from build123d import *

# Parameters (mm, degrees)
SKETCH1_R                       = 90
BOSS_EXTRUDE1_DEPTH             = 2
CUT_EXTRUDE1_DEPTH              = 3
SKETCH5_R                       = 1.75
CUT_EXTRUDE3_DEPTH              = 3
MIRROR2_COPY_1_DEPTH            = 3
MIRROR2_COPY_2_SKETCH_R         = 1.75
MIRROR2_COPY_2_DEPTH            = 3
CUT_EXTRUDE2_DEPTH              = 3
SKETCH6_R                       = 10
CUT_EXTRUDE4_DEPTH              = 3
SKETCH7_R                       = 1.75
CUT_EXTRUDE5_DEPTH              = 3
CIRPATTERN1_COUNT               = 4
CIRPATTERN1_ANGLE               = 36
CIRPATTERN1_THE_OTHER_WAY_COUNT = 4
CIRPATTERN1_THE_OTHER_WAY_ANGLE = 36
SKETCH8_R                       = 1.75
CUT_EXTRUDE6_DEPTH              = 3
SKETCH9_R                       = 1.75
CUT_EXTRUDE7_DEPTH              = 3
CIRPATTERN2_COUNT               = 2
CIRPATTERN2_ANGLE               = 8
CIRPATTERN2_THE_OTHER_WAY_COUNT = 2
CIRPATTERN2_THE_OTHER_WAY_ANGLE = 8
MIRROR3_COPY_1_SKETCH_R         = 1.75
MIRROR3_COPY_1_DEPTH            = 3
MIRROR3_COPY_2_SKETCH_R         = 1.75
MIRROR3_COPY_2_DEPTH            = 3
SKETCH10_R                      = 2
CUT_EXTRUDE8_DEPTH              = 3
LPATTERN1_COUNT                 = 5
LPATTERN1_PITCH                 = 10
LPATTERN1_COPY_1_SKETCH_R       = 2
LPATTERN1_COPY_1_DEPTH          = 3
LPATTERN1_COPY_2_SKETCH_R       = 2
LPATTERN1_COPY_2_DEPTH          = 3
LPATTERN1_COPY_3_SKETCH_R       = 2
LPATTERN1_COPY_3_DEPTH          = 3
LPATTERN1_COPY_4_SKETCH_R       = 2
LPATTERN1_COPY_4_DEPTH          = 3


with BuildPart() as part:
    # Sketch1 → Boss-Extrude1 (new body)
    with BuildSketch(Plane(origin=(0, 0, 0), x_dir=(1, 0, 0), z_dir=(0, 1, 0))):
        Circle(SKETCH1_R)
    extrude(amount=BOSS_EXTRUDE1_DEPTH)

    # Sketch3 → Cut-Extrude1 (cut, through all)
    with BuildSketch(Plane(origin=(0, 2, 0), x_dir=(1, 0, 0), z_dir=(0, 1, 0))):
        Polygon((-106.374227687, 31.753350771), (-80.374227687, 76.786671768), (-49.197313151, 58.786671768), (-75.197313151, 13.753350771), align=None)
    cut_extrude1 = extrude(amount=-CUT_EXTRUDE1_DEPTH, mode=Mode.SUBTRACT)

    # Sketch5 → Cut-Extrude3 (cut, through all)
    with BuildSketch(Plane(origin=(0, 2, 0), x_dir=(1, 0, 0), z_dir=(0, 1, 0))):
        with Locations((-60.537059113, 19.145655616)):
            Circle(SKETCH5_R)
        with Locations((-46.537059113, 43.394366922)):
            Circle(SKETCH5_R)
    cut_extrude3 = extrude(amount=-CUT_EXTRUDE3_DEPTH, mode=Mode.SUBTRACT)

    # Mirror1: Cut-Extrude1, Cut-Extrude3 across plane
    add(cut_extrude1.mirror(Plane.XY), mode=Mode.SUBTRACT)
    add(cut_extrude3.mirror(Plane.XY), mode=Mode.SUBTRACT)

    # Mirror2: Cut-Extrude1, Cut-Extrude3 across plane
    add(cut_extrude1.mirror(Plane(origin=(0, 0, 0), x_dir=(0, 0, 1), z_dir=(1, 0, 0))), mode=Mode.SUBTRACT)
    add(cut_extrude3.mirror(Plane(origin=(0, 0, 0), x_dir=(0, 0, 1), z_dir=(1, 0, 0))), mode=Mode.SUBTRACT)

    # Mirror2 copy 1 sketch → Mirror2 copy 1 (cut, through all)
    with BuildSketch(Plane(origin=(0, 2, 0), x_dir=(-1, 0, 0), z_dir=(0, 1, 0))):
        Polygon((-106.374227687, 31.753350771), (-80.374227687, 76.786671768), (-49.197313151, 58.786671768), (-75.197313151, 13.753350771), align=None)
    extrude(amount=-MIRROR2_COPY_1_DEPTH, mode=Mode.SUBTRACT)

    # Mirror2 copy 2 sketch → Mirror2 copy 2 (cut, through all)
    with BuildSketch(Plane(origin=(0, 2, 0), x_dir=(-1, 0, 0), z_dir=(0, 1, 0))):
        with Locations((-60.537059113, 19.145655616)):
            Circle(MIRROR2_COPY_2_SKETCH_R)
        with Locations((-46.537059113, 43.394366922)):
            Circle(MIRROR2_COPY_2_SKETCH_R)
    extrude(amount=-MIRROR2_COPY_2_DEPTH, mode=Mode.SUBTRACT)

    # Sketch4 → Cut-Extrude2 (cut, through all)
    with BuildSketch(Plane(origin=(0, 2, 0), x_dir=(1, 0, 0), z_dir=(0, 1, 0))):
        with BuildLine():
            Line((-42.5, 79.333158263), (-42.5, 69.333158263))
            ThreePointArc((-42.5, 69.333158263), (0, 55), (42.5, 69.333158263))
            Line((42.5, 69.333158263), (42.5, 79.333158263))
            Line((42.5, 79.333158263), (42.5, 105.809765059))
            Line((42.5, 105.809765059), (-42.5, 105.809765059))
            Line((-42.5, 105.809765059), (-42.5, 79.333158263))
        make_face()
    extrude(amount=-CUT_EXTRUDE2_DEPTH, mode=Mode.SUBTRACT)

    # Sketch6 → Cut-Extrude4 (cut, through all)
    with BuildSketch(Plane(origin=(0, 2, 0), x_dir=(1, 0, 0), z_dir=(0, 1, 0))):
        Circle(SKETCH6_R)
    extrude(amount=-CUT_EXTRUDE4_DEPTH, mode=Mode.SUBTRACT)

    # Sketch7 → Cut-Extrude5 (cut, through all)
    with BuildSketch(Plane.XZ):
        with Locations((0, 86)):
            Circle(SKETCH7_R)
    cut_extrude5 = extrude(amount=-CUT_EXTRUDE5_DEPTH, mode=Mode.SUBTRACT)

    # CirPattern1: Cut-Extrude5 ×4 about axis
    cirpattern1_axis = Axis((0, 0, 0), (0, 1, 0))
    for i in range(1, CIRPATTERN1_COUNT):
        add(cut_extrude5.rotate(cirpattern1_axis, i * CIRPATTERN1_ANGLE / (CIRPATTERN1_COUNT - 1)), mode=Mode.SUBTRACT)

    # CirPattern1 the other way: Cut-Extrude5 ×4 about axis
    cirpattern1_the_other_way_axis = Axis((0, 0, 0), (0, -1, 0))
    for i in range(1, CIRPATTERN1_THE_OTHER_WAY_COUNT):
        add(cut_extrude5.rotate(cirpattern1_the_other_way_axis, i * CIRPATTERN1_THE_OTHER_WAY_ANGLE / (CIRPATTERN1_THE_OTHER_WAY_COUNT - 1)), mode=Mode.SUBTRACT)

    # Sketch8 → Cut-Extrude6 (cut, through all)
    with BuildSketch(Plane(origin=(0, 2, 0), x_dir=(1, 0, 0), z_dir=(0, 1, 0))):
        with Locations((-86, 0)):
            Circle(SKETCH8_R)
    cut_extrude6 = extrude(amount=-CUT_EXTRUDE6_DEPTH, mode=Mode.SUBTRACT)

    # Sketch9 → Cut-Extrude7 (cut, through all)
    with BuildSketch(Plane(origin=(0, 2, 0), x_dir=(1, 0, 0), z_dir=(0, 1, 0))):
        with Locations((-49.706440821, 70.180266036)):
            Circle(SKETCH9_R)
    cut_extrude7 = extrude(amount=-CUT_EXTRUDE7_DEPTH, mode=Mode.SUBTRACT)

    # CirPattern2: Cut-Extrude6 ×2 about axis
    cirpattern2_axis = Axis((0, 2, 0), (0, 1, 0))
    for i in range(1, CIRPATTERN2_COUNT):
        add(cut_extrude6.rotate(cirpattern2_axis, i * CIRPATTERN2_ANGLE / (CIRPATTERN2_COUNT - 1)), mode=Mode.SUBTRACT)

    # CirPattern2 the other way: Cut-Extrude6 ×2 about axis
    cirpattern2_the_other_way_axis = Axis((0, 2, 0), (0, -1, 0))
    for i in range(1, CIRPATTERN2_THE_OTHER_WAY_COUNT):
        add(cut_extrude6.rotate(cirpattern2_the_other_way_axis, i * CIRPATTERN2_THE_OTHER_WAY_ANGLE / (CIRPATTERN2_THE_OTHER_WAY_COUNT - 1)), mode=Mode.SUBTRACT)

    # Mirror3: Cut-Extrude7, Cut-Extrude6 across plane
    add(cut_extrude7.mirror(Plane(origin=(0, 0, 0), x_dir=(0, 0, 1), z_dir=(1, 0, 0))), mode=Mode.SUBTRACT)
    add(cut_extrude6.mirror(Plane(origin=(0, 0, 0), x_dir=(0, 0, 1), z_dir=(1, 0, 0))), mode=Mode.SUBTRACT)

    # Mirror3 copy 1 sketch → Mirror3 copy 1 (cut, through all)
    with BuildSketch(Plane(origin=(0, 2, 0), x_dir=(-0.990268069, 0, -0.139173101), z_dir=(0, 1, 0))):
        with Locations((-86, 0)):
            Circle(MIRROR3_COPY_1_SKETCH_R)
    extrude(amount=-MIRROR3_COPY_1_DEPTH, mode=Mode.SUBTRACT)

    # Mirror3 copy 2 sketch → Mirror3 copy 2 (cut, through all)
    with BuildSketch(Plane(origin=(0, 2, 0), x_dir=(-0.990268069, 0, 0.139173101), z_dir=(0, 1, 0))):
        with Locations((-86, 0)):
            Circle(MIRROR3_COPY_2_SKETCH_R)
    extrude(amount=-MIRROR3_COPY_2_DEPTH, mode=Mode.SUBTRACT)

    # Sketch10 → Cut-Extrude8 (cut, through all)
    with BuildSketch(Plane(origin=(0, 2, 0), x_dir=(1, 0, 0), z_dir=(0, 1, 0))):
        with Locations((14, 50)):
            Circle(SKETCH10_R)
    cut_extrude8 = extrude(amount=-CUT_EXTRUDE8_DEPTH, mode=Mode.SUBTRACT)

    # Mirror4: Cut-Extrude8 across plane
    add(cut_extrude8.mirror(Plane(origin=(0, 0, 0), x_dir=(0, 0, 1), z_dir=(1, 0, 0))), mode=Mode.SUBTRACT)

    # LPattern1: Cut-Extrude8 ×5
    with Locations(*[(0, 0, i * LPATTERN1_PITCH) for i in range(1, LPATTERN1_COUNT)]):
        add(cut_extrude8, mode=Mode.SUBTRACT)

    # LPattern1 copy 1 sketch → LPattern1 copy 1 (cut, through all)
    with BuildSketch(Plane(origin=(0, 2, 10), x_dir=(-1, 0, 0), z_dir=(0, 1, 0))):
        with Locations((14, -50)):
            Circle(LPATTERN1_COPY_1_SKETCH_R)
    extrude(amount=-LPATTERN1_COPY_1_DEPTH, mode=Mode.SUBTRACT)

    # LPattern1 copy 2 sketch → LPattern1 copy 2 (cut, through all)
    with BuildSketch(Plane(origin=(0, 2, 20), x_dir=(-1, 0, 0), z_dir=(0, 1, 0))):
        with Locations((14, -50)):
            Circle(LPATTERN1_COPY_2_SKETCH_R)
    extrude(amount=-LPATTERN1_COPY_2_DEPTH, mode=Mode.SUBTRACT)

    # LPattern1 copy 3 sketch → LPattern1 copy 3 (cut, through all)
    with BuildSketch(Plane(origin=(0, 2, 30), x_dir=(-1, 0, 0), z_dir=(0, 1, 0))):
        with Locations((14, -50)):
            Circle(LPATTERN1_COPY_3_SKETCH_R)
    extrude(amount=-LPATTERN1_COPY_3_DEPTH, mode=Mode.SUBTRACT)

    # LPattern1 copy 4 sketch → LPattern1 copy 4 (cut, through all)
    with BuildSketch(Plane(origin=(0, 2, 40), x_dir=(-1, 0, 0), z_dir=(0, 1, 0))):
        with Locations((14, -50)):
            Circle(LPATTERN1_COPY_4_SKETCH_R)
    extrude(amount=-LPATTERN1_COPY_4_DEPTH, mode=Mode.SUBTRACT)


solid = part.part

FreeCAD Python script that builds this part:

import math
import FreeCAD as App
import Part
import Sketcher
from FreeCAD import Vector
Q = App.Units.Quantity

doc = App.newDocument("Part")
body = doc.addObject("PartDesign::Body", "Body")

sketch1 = body.newObject("Sketcher::SketchObject", "Sketch")
sketch1.AttachmentSupport = (doc.getObject("XZ_Plane"), [""])
sketch1.MapMode = "FlatFace"
sketch1.addGeometry(Part.Circle(Vector(0, 0, 0), Vector(0, 0, 1), 90), False)
sketch1.addConstraint([
    Sketcher.Constraint("Coincident", 0, 3, -1, 1),
    Sketcher.Constraint("Diameter", 0, Q("180 mm")),
])
pad1 = body.newObject("PartDesign::Pad", "Pad")
pad1.Profile = sketch1
pad1.Length = 2
pad1.Reversed = True

sketch2 = body.newObject("Sketcher::SketchObject", "Sketch001")
sketch2.AttachmentSupport = (doc.getObject("XZ_Plane"), [""])
sketch2.MapMode = "FlatFace"
sketch2.AttachmentOffset = App.Placement(Vector(0, 0, -2), App.Rotation())
sketch2.addGeometry([
    Part.LineSegment(Vector(-80, -77, 0), Vector(-106, -32, 0)),
    Part.LineSegment(Vector(-106, -32, 0), Vector(-75, -14, 0)),
    Part.LineSegment(Vector(-75, -14, 0), Vector(-49, -59, 0)),
    Part.LineSegment(Vector(-49, -59, 0), Vector(-80, -77, 0)),
], False)
sketch2.addConstraint([
    Sketcher.Constraint("Coincident", 0, 2, 1, 1),
    Sketcher.Constraint("Coincident", 1, 2, 2, 1),
    Sketcher.Constraint("Coincident", 2, 2, 3, 1),
    Sketcher.Constraint("Coincident", 3, 2, 0, 1),
    Sketcher.Constraint("Perpendicular", 0, 1),
    Sketcher.Constraint("Perpendicular", 1, 2),
    Sketcher.Constraint("Perpendicular", 2, 3),
    Sketcher.Constraint("Angle", 0, Q("120 deg")),
    Sketcher.Constraint("Distance", 0, Q("52 mm")),
    Sketcher.Constraint("Distance", 1, Q("36 mm")),
    Sketcher.Constraint("DistanceY", 0, 2, -1, 1, Q("31.753351 mm")),
    Sketcher.Constraint("DistanceX", 0, 2, -1, 1, Q("106.374228 mm")),
])
pocket1 = body.newObject("PartDesign::Pocket", "Pocket")
pocket1.Profile = sketch2
pocket1.Type = "ThroughAll"
pocket1.Reversed = True

sketch3 = body.newObject("Sketcher::SketchObject", "Sketch002")
sketch3.AttachmentSupport = (doc.getObject("XZ_Plane"), [""])
sketch3.MapMode = "FlatFace"
sketch3.AttachmentOffset = App.Placement(Vector(0, 0, -2), App.Rotation())
sketch3.addGeometry([
    Part.Circle(Vector(-60.5, -19.1, 0), Vector(0, 0, 1), 1.8),
    Part.Circle(Vector(-46.5, -43.4, 0), Vector(0, 0, 1), 1.8),
], False)
sketch3.addConstraint([
    Sketcher.Constraint("Equal", 0, 1),
    Sketcher.Constraint("Diameter", 0, Q("3.5 mm")),
    Sketcher.Constraint("DistanceX", 0, 3, 1, 3, Q("14 mm")),
    Sketcher.Constraint("DistanceX", 0, 3, -1, 1, Q("60.537059 mm")),
    Sketcher.Constraint("DistanceY", 1, 3, 0, 3, Q("24.248711 mm")),
    Sketcher.Constraint("DistanceY", 0, 3, -1, 1, Q("19.145656 mm")),
])
pocket2 = body.newObject("PartDesign::Pocket", "Pocket001")
pocket2.Profile = sketch3
pocket2.Type = "ThroughAll"
pocket2.Reversed = True
doc.recompute()

mirrored = body.newObject("PartDesign::Mirrored", "Mirrored")
mirrored.Originals = [pocket1, pocket2]
mirrored.MirrorPlane = (doc.getObject("XY_Plane"), [""])
body.Tip = mirrored
doc.recompute()

mirrored2 = body.newObject("PartDesign::Mirrored", "Mirrored001")
mirrored2.Originals = [pocket1, pocket2]
mirrored2.MirrorPlane = (doc.getObject("YZ_Plane"), [""])
body.Tip = mirrored2

sketch4 = body.newObject("Sketcher::SketchObject", "Sketch003")
sketch4.AttachmentSupport = (doc.getObject("XZ_Plane"), [""])
sketch4.MapMode = "FlatFace"
sketch4.AttachmentOffset = App.Placement(Vector(0, 0, -2), App.Rotation())
sketch4.addGeometry([
    Part.LineSegment(Vector(80, 77, 0), Vector(106, 32, 0)),
    Part.LineSegment(Vector(106, 32, 0), Vector(75, 14, 0)),
    Part.LineSegment(Vector(75, 14, 0), Vector(49, 59, 0)),
    Part.LineSegment(Vector(49, 59, 0), Vector(80, 77, 0)),
], False)
sketch4.addConstraint([
    Sketcher.Constraint("Coincident", 0, 2, 1, 1),
    Sketcher.Constraint("Coincident", 1, 2, 2, 1),
    Sketcher.Constraint("Coincident", 2, 2, 3, 1),
    Sketcher.Constraint("Coincident", 3, 2, 0, 1),
    Sketcher.Constraint("Perpendicular", 0, 1),
    Sketcher.Constraint("Perpendicular", 1, 2),
    Sketcher.Constraint("Perpendicular", 2, 3),
    Sketcher.Constraint("Angle", 0, Q("-60 deg")),
    Sketcher.Constraint("Distance", 0, Q("52 mm")),
    Sketcher.Constraint("Distance", 1, Q("36 mm")),
    Sketcher.Constraint("DistanceY", -1, 1, 0, 2, Q("31.753351 mm")),
    Sketcher.Constraint("DistanceX", -1, 1, 0, 2, Q("106.374228 mm")),
])
pocket3 = body.newObject("PartDesign::Pocket", "Pocket002")
pocket3.Profile = sketch4
pocket3.Type = "ThroughAll"
pocket3.Reversed = True

sketch5 = body.newObject("Sketcher::SketchObject", "Sketch004")
sketch5.AttachmentSupport = (doc.getObject("XZ_Plane"), [""])
sketch5.MapMode = "FlatFace"
sketch5.AttachmentOffset = App.Placement(Vector(0, 0, -2), App.Rotation())
sketch5.addGeometry([
    Part.Circle(Vector(60.5, 19.1, 0), Vector(0, 0, 1), 1.8),
    Part.Circle(Vector(46.5, 43.4, 0), Vector(0, 0, 1), 1.8),
], False)
sketch5.addConstraint([
    Sketcher.Constraint("Equal", 0, 1),
    Sketcher.Constraint("Diameter", 0, Q("3.5 mm")),
    Sketcher.Constraint("DistanceX", 1, 3, 0, 3, Q("14 mm")),
    Sketcher.Constraint("DistanceX", -1, 1, 0, 3, Q("60.537059 mm")),
    Sketcher.Constraint("DistanceY", 0, 3, 1, 3, Q("24.248711 mm")),
    Sketcher.Constraint("DistanceY", -1, 1, 0, 3, Q("19.145656 mm")),
])
pocket4 = body.newObject("PartDesign::Pocket", "Pocket003")
pocket4.Profile = sketch5
pocket4.Type = "ThroughAll"
pocket4.Reversed = True

sketch6 = body.newObject("Sketcher::SketchObject", "Sketch005")
sketch6.AttachmentSupport = (doc.getObject("XZ_Plane"), [""])
sketch6.MapMode = "FlatFace"
sketch6.AttachmentOffset = App.Placement(Vector(0, 0, -2), App.Rotation())
sketch6.addGeometry([
    Part.ArcOfCircle(Part.Circle(Vector(0, -125, 0), Vector(0, 0, 1), 70), math.radians(53), math.radians(127)),
    Part.LineSegment(Vector(42, -69, 0), Vector(42, -106, 0)),
    Part.LineSegment(Vector(42, -106, 0), Vector(-42, -106, 0)),
    Part.LineSegment(Vector(-42, -106, 0), Vector(-42, -69, 0)),
], False)
sketch6.addConstraint([
    Sketcher.Constraint("Coincident", 0, 1, 1, 1),
    Sketcher.Constraint("Coincident", 1, 2, 2, 1),
    Sketcher.Constraint("Coincident", 2, 2, 3, 1),
    Sketcher.Constraint("Coincident", 3, 2, 0, 2),
    Sketcher.Constraint("Vertical", 1),
    Sketcher.Constraint("Horizontal", 2),
    Sketcher.Constraint("Vertical", 3),
    Sketcher.Constraint("Symmetric", 0, 1, 3, 2, -2),
    Sketcher.Constraint("DistanceX", 2, 2, 2, 1, Q("85 mm")),
    Sketcher.Constraint("Radius", 0, Q("70.17607 mm")),
    Sketcher.Constraint("DistanceY", 1, 2, 1, 1, Q("36.476607 mm")),
    Sketcher.Constraint("DistanceY", 0, 3, -1, 1, Q("125.17607 mm")),
])
pocket5 = body.newObject("PartDesign::Pocket", "Pocket004")
pocket5.Profile = sketch6
pocket5.Type = "ThroughAll"
pocket5.Reversed = True

sketch7 = body.newObject("Sketcher::SketchObject", "Sketch006")
sketch7.AttachmentSupport = (doc.getObject("XZ_Plane"), [""])
sketch7.MapMode = "FlatFace"
sketch7.AttachmentOffset = App.Placement(Vector(0, 0, -2), App.Rotation())
sketch7.addGeometry(Part.Circle(Vector(0, 0, 0), Vector(0, 0, 1), 10), False)
sketch7.addConstraint([
    Sketcher.Constraint("Coincident", 0, 3, -1, 1),
    Sketcher.Constraint("Diameter", 0, Q("20 mm")),
])
pocket6 = body.newObject("PartDesign::Pocket", "Pocket005")
pocket6.Profile = sketch7
pocket6.Type = "ThroughAll"
pocket6.Reversed = True

sketch8 = body.newObject("Sketcher::SketchObject", "Sketch007")
sketch8.AttachmentSupport = (doc.getObject("XZ_Plane"), [""])
sketch8.MapMode = "FlatFace"
sketch8.addGeometry(Part.Circle(Vector(0, 86, 0), Vector(0, 0, 1), 1.8), False)
sketch8.addConstraint([
    Sketcher.Constraint("PointOnObject", 0, 3, -2),
    Sketcher.Constraint("Diameter", 0, Q("3.5 mm")),
    Sketcher.Constraint("DistanceY", -1, 1, 0, 3, Q("86 mm")),
])
pocket7 = body.newObject("PartDesign::Pocket", "Pocket006")
pocket7.Profile = sketch8
pocket7.Type = "ThroughAll"
doc.recompute()

polarpattern = body.newObject("PartDesign::PolarPattern", "PolarPattern")
polarpattern.Originals = [pocket7]
polarpattern.Axis = (doc.getObject("Y_Axis"), [""])
polarpattern.Angle = 36
polarpattern.Occurrences = 4
body.Tip = polarpattern
doc.recompute()

polarpattern2 = body.newObject("PartDesign::PolarPattern", "PolarPattern001")
polarpattern2.Originals = [pocket7]
polarpattern2.Axis = (doc.getObject("Y_Axis"), [""])
polarpattern2.Angle = 36
polarpattern2.Occurrences = 4
polarpattern2.Reversed = True
body.Tip = polarpattern2

sketch9 = body.newObject("Sketcher::SketchObject", "Sketch008")
sketch9.AttachmentSupport = (doc.getObject("XZ_Plane"), [""])
sketch9.MapMode = "FlatFace"
sketch9.AttachmentOffset = App.Placement(Vector(0, 0, -2), App.Rotation())
sketch9.addGeometry(Part.Circle(Vector(-86, 0, 0), Vector(0, 0, 1), 1.8), False)
sketch9.addConstraint([
    Sketcher.Constraint("PointOnObject", 0, 3, -1),
    Sketcher.Constraint("Diameter", 0, Q("3.5 mm")),
    Sketcher.Constraint("DistanceX", 0, 3, -1, 1, Q("86 mm")),
])
pocket8 = body.newObject("PartDesign::Pocket", "Pocket007")
pocket8.Profile = sketch9
pocket8.Type = "ThroughAll"
pocket8.Reversed = True

sketch10 = body.newObject("Sketcher::SketchObject", "Sketch009")
sketch10.AttachmentSupport = (doc.getObject("XZ_Plane"), [""])
sketch10.MapMode = "FlatFace"
sketch10.AttachmentOffset = App.Placement(Vector(0, 0, -2), App.Rotation())
sketch10.addGeometry(Part.Circle(Vector(-49.7, -70.2, 0), Vector(0, 0, 1), 1.8), False)
sketch10.addConstraint([
    Sketcher.Constraint("Diameter", 0, Q("3.5 mm")),
    Sketcher.Constraint("DistanceX", 0, 3, -1, 1, Q("49.706441 mm")),
    Sketcher.Constraint("DistanceY", 0, 3, -1, 1, Q("70.180266 mm")),
])
pocket9 = body.newObject("PartDesign::Pocket", "Pocket008")
pocket9.Profile = sketch10
pocket9.Type = "ThroughAll"
pocket9.Reversed = True
doc.recompute()

polarpattern3 = body.newObject("PartDesign::PolarPattern", "PolarPattern002")
polarpattern3.Originals = [pocket8]
polarpattern3.Axis = (doc.getObject("Y_Axis"), [""])
polarpattern3.Angle = 8
polarpattern3.Occurrences = 2
body.Tip = polarpattern3
doc.recompute()

polarpattern4 = body.newObject("PartDesign::PolarPattern", "PolarPattern003")
polarpattern4.Originals = [pocket8]
polarpattern4.Axis = (doc.getObject("Y_Axis"), [""])
polarpattern4.Angle = 8
polarpattern4.Occurrences = 2
polarpattern4.Reversed = True
body.Tip = polarpattern4
doc.recompute()

mirrored3 = body.newObject("PartDesign::Mirrored", "Mirrored002")
mirrored3.Originals = [pocket9, pocket8]
mirrored3.MirrorPlane = (doc.getObject("YZ_Plane"), [""])
body.Tip = mirrored3

sketch11 = body.newObject("Sketcher::SketchObject", "Sketch010")
sketch11.AttachmentSupport = (doc.getObject("XZ_Plane"), [""])
sketch11.MapMode = "FlatFace"
sketch11.AttachmentOffset = App.Placement(Vector(0, 0, -2), App.Rotation())
sketch11.addGeometry(Part.Circle(Vector(85.2, 12, 0), Vector(0, 0, 1), 1.8), False)
sketch11.addConstraint([
    Sketcher.Constraint("Diameter", 0, Q("3.5 mm")),
    Sketcher.Constraint("DistanceX", -1, 1, 0, 3, Q("85.163054 mm")),
    Sketcher.Constraint("DistanceY", -1, 1, 0, 3, Q("11.968887 mm")),
])
pocket10 = body.newObject("PartDesign::Pocket", "Pocket009")
pocket10.Profile = sketch11
pocket10.Type = "ThroughAll"
pocket10.Reversed = True

sketch12 = body.newObject("Sketcher::SketchObject", "Sketch011")
sketch12.AttachmentSupport = (doc.getObject("XZ_Plane"), [""])
sketch12.MapMode = "FlatFace"
sketch12.AttachmentOffset = App.Placement(Vector(0, 0, -2), App.Rotation())
sketch12.addGeometry(Part.Circle(Vector(85.2, -12, 0), Vector(0, 0, 1), 1.8), False)
sketch12.addConstraint([
    Sketcher.Constraint("Diameter", 0, Q("3.5 mm")),
    Sketcher.Constraint("DistanceX", -1, 1, 0, 3, Q("85.163054 mm")),
    Sketcher.Constraint("DistanceY", 0, 3, -1, 1, Q("11.968887 mm")),
])
pocket11 = body.newObject("PartDesign::Pocket", "Pocket010")
pocket11.Profile = sketch12
pocket11.Type = "ThroughAll"
pocket11.Reversed = True

sketch13 = body.newObject("Sketcher::SketchObject", "Sketch012")
sketch13.AttachmentSupport = (doc.getObject("XZ_Plane"), [""])
sketch13.MapMode = "FlatFace"
sketch13.AttachmentOffset = App.Placement(Vector(0, 0, -2), App.Rotation())
sketch13.addGeometry(Part.Circle(Vector(14, -50, 0), Vector(0, 0, 1), 2), False)
sketch13.addConstraint([
    Sketcher.Constraint("Diameter", 0, Q("4 mm")),
    Sketcher.Constraint("DistanceX", -1, 1, 0, 3, Q("14 mm")),
    Sketcher.Constraint("DistanceY", 0, 3, -1, 1, Q("50 mm")),
])
pocket12 = body.newObject("PartDesign::Pocket", "Pocket011")
pocket12.Profile = sketch13
pocket12.Type = "ThroughAll"
pocket12.Reversed = True
doc.recompute()

mirrored4 = body.newObject("PartDesign::Mirrored", "Mirrored003")
mirrored4.Originals = [pocket12]
mirrored4.MirrorPlane = (doc.getObject("YZ_Plane"), [""])
body.Tip = mirrored4
doc.recompute()

linearpattern = body.newObject("PartDesign::LinearPattern", "LinearPattern")
linearpattern.Originals = [pocket12]
linearpattern.Direction = (doc.getObject("Z_Axis"), [""])
linearpattern.Mode = "offset"
linearpattern.Offset = 10
linearpattern.Occurrences = 5
body.Tip = linearpattern

sketch14 = body.newObject("Sketcher::SketchObject", "Sketch013")
sketch14.AttachmentSupport = (doc.getObject("XZ_Plane"), [""])
sketch14.MapMode = "FlatFace"
sketch14.AttachmentOffset = App.Placement(Vector(0, 0, -2), App.Rotation())
sketch14.addGeometry(Part.Circle(Vector(-14, -40, 0), Vector(0, 0, 1), 2), False)
sketch14.addConstraint([
    Sketcher.Constraint("Diameter", 0, Q("4 mm")),
    Sketcher.Constraint("DistanceX", 0, 3, -1, 1, Q("14 mm")),
    Sketcher.Constraint("DistanceY", 0, 3, -1, 1, Q("40 mm")),
])
pocket13 = body.newObject("PartDesign::Pocket", "Pocket012")
pocket13.Profile = sketch14
pocket13.Type = "ThroughAll"
pocket13.Reversed = True

sketch15 = body.newObject("Sketcher::SketchObject", "Sketch014")
sketch15.AttachmentSupport = (doc.getObject("XZ_Plane"), [""])
sketch15.MapMode = "FlatFace"
sketch15.AttachmentOffset = App.Placement(Vector(0, 0, -2), App.Rotation())
sketch15.addGeometry(Part.Circle(Vector(-14, -30, 0), Vector(0, 0, 1), 2), False)
sketch15.addConstraint([
    Sketcher.Constraint("Diameter", 0, Q("4 mm")),
    Sketcher.Constraint("DistanceX", 0, 3, -1, 1, Q("14 mm")),
    Sketcher.Constraint("DistanceY", 0, 3, -1, 1, Q("30 mm")),
])
pocket14 = body.newObject("PartDesign::Pocket", "Pocket013")
pocket14.Profile = sketch15
pocket14.Type = "ThroughAll"
pocket14.Reversed = True

sketch16 = body.newObject("Sketcher::SketchObject", "Sketch015")
sketch16.AttachmentSupport = (doc.getObject("XZ_Plane"), [""])
sketch16.MapMode = "FlatFace"
sketch16.AttachmentOffset = App.Placement(Vector(0, 0, -2), App.Rotation())
sketch16.addGeometry(Part.Circle(Vector(-14, -20, 0), Vector(0, 0, 1), 2), False)
sketch16.addConstraint([
    Sketcher.Constraint("Diameter", 0, Q("4 mm")),
    Sketcher.Constraint("DistanceX", 0, 3, -1, 1, Q("14 mm")),
    Sketcher.Constraint("DistanceY", 0, 3, -1, 1, Q("20 mm")),
])
pocket15 = body.newObject("PartDesign::Pocket", "Pocket014")
pocket15.Profile = sketch16
pocket15.Type = "ThroughAll"
pocket15.Reversed = True

sketch17 = body.newObject("Sketcher::SketchObject", "Sketch016")
sketch17.AttachmentSupport = (doc.getObject("XZ_Plane"), [""])
sketch17.MapMode = "FlatFace"
sketch17.AttachmentOffset = App.Placement(Vector(0, 0, -2), App.Rotation())
sketch17.addGeometry(Part.Circle(Vector(-14, -10, 0), Vector(0, 0, 1), 2), False)
sketch17.addConstraint([
    Sketcher.Constraint("Diameter", 0, Q("4 mm")),
    Sketcher.Constraint("DistanceX", 0, 3, -1, 1, Q("14 mm")),
    Sketcher.Constraint("DistanceY", 0, 3, -1, 1, Q("10 mm")),
])
pocket16 = body.newObject("PartDesign::Pocket", "Pocket015")
pocket16.Profile = sketch17
pocket16.Type = "ThroughAll"
pocket16.Reversed = True

doc.recompute()
